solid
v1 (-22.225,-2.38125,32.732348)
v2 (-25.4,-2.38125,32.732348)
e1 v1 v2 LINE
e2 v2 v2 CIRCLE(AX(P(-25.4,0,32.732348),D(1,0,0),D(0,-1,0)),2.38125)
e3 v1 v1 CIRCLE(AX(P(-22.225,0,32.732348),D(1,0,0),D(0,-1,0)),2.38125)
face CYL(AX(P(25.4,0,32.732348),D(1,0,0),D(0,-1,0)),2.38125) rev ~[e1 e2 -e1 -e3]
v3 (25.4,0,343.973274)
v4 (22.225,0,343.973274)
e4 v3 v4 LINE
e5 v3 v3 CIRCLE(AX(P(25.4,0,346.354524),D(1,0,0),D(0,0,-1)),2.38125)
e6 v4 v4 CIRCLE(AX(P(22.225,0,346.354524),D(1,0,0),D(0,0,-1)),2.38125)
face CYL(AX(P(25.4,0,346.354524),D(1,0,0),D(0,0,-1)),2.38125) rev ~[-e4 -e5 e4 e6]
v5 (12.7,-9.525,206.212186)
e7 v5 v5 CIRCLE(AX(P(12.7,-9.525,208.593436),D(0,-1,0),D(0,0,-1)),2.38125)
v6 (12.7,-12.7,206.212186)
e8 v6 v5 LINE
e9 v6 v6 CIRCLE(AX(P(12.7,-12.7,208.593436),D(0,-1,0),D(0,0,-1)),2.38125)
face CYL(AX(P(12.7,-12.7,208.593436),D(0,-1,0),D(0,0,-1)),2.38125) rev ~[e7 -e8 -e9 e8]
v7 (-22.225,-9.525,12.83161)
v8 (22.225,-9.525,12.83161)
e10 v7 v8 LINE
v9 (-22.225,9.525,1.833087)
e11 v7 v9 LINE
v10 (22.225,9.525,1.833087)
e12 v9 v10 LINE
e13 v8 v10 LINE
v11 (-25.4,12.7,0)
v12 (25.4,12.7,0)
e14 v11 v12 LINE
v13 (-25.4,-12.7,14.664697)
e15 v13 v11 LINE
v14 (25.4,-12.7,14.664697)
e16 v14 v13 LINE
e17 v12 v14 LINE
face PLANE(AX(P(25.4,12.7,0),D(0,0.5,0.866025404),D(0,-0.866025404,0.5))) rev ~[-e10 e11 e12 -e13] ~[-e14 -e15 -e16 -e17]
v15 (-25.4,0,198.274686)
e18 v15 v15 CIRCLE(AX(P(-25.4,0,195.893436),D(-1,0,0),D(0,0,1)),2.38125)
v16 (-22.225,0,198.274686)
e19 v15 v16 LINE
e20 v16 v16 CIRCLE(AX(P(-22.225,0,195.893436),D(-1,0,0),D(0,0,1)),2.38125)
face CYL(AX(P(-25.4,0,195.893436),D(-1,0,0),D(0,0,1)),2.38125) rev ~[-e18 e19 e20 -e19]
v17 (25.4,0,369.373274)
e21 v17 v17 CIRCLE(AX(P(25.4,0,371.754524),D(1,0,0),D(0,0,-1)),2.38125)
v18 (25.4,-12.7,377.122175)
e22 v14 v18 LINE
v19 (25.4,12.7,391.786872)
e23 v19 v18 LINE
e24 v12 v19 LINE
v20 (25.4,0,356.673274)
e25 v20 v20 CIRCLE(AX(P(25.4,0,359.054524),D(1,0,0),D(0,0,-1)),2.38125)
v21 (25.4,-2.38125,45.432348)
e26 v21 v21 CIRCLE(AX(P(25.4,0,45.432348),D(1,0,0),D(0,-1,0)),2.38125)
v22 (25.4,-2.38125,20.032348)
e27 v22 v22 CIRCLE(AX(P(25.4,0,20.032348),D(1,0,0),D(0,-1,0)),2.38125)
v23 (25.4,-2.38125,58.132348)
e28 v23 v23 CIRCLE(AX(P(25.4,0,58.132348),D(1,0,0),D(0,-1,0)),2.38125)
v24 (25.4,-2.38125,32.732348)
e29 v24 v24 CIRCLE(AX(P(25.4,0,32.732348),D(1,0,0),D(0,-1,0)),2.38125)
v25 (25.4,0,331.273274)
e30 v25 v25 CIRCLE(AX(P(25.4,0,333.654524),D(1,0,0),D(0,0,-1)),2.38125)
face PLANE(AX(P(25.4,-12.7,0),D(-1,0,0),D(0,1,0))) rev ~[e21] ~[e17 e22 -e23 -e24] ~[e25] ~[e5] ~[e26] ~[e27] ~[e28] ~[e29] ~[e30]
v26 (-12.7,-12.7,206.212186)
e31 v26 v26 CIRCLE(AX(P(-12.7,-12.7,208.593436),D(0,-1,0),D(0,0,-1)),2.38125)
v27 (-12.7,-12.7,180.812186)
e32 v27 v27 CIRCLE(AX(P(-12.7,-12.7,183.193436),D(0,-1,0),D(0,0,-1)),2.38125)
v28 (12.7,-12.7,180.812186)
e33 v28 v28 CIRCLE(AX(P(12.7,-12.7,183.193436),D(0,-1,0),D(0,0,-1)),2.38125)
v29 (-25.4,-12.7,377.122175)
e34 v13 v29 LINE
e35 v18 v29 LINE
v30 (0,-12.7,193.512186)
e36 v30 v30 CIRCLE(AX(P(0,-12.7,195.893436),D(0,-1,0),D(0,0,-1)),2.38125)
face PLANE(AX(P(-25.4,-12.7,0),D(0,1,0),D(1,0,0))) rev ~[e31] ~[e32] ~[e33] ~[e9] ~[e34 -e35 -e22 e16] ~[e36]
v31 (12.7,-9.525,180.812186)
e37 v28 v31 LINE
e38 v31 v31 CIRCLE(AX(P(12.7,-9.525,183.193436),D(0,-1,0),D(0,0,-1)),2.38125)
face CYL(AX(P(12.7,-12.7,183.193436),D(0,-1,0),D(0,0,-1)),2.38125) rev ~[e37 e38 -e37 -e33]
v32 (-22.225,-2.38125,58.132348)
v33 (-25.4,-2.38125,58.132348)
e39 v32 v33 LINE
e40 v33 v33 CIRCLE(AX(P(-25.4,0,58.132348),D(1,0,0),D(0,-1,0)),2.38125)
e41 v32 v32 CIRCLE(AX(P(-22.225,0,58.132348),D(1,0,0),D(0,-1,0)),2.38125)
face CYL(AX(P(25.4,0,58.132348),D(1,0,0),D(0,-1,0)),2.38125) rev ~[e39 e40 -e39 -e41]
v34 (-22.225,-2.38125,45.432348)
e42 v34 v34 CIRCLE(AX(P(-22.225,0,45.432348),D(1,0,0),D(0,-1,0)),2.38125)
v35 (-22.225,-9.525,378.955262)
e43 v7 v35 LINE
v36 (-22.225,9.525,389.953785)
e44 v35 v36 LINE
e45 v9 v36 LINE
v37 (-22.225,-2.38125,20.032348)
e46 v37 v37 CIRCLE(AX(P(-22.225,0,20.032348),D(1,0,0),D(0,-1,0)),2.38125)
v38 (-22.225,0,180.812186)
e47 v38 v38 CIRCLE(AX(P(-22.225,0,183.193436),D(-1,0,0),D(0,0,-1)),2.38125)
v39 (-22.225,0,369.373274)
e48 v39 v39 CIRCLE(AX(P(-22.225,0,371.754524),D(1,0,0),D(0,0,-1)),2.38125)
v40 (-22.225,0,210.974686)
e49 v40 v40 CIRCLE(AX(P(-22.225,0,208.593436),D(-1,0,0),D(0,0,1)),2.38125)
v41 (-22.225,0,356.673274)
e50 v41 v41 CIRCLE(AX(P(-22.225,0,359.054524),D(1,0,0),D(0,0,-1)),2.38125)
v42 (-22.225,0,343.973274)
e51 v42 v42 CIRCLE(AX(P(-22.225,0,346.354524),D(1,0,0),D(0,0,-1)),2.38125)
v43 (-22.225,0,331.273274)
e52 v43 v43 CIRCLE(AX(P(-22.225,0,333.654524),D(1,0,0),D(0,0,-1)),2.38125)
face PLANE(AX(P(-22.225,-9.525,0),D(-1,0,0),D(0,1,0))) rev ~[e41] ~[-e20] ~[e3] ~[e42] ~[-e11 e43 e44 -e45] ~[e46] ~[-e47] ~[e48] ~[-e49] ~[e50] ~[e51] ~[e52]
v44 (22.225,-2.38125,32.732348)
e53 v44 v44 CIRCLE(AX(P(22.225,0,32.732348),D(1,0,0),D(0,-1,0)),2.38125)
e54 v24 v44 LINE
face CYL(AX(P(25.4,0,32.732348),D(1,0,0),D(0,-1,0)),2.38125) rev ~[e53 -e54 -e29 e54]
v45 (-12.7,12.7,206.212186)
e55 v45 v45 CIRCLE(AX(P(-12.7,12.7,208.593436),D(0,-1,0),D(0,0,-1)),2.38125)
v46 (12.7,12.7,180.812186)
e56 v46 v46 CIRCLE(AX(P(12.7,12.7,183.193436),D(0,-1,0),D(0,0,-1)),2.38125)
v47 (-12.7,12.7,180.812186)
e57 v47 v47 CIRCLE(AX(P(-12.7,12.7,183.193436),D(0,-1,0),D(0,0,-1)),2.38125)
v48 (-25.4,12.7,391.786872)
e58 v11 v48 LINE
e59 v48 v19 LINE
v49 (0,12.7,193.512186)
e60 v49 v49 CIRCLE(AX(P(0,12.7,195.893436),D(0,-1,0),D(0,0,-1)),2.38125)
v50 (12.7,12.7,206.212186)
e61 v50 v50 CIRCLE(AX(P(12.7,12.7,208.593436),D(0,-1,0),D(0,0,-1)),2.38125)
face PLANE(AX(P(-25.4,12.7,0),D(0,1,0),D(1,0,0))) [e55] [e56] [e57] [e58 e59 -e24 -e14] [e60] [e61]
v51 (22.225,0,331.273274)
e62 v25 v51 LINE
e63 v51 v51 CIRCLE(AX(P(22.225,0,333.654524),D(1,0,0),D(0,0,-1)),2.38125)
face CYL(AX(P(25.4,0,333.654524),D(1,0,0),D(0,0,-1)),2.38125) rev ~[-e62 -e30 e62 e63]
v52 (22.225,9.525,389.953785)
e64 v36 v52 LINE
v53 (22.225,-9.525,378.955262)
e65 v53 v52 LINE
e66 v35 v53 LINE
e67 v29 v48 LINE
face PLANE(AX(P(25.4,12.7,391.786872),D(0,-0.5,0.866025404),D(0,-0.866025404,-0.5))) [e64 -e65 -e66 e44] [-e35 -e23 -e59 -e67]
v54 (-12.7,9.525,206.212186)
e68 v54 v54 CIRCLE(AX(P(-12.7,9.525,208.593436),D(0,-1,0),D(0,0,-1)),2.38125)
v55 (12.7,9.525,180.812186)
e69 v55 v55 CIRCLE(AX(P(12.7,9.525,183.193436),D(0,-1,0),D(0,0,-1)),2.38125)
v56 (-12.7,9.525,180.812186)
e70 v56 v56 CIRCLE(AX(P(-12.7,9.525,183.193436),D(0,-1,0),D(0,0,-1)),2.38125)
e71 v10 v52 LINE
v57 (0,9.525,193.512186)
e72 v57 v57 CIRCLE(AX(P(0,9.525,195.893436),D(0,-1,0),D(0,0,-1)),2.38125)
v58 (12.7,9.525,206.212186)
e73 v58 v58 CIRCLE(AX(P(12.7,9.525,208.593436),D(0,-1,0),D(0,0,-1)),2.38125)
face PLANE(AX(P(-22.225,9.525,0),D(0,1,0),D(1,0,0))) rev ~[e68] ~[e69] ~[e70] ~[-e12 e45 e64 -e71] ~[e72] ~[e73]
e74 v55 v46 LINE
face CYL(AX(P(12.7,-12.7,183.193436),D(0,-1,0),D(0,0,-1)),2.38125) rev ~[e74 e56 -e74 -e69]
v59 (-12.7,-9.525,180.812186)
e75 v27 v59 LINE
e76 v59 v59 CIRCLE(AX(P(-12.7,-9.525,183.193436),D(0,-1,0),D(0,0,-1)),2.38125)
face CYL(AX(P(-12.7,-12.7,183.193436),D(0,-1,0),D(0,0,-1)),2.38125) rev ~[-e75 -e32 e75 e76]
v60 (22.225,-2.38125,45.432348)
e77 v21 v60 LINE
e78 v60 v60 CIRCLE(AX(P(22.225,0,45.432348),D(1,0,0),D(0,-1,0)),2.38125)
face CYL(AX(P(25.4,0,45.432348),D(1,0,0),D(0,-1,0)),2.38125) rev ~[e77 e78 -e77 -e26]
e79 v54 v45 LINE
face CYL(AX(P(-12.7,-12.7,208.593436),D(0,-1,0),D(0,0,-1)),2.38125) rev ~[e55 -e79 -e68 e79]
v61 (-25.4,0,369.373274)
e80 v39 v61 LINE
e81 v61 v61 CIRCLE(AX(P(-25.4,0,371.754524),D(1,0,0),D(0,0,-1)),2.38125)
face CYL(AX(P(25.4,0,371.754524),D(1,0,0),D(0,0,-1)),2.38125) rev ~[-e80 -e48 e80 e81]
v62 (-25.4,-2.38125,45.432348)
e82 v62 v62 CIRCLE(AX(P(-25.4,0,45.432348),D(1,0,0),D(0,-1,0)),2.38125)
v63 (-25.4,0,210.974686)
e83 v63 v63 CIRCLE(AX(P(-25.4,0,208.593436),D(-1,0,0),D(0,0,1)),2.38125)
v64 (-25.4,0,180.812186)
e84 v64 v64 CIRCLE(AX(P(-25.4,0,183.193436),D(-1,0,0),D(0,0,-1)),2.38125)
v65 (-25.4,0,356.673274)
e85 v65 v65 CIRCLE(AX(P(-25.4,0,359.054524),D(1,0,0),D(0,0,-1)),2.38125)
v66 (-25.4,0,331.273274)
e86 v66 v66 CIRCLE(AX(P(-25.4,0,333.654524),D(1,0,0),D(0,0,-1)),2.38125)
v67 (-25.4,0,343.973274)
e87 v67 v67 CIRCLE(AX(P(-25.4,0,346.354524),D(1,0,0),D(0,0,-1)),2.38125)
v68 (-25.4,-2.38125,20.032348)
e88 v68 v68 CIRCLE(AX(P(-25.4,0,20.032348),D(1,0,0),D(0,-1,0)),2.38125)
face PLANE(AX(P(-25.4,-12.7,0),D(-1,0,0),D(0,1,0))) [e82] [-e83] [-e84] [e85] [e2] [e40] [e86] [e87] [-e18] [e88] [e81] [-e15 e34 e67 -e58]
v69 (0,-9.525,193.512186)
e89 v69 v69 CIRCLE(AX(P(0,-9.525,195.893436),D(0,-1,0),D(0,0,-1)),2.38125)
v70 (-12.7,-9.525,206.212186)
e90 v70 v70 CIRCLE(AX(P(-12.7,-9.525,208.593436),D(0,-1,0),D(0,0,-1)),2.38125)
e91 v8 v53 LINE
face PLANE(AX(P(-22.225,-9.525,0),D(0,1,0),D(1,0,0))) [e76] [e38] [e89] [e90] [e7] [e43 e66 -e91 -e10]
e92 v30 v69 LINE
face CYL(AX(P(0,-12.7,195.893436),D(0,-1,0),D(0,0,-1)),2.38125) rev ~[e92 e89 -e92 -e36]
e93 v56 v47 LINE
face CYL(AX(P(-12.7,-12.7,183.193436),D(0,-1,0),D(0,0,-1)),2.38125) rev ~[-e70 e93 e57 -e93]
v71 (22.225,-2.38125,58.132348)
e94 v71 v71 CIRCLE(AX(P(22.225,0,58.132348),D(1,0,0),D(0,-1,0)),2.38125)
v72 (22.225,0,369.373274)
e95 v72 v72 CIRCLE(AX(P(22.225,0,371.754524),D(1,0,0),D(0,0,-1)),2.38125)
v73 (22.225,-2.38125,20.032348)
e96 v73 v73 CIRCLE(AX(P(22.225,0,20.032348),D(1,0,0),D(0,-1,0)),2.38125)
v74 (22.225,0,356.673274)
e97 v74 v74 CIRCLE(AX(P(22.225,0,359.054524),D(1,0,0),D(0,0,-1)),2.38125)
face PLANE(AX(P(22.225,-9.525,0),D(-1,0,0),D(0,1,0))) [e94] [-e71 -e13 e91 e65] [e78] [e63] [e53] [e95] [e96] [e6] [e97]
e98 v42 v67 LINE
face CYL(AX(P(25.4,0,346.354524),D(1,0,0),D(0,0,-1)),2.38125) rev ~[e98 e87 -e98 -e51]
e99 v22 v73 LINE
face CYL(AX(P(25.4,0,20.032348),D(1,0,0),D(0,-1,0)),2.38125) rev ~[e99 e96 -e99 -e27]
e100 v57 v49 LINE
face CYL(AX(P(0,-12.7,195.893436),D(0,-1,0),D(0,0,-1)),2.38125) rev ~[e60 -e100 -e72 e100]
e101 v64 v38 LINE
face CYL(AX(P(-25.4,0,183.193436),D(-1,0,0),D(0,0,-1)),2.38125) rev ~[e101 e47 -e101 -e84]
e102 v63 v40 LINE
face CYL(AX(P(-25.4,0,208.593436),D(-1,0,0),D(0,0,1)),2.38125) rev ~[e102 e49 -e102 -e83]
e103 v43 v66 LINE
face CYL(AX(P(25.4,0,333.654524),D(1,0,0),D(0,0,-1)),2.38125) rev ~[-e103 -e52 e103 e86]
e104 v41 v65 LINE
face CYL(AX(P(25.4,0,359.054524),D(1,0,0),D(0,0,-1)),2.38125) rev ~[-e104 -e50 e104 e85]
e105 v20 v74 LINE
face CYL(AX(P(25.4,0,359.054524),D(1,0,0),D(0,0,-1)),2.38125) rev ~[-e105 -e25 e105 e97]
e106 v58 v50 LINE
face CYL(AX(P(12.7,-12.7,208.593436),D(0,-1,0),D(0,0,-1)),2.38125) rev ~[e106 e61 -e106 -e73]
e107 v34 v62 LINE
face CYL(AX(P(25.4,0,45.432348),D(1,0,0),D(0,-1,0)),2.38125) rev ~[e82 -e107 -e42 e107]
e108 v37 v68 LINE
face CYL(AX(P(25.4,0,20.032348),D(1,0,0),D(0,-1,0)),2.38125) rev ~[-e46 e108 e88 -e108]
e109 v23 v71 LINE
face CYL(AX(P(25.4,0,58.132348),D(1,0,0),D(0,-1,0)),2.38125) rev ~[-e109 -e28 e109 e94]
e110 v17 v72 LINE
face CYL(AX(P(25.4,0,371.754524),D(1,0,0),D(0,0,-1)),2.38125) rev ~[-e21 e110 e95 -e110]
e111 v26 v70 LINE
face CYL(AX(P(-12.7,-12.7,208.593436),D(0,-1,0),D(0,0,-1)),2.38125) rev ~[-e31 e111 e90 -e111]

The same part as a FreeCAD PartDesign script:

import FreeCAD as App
import Part
import Sketcher
Q = App.Units.Quantity


def add_polygon(sketch, points):
    """Adds a closed chain of lines whose ends are joined by coincident constraints."""
    first, n = sketch.GeometryCount, len(points)
    for a, b in zip(points, points[1:] + points[:1]):
        sketch.addGeometry(Part.LineSegment(App.Vector(*a, 0), App.Vector(*b, 0)), False)
    for i in range(n):
        sketch.addConstraint(Sketcher.Constraint("Coincident", first + i, 2, first + (i + 1) % n, 1))

doc = App.newDocument("Part")
body = doc.addObject("PartDesign::Body", "Body")

# Sketch on XY plane
sketch1 = doc.addObject("Sketcher::SketchObject", "Sketch")
body.addObject(sketch1)
sketch1.AttachmentSupport = (doc.XY_Plane, [""])
sketch1.MapMode = "FlatFace"
add_polygon(sketch1, [(-25.4, 12.7), (-25.4, -12.7), (25.4, -12.7), (25.4, 12.7)])  # lines 0-3
add_polygon(sketch1, [(22.225, -9.525), (-22.225, -9.525), (-22.225, 9.525), (22.225, 9.525)])  # lines 4-7
sketch1.addConstraint([
    Sketcher.Constraint("Vertical", 0),
    Sketcher.Constraint("Horizontal", 1),
    Sketcher.Constraint("Vertical", 2),
    Sketcher.Constraint("Horizontal", 3),
    Sketcher.Constraint("Horizontal", 4),
    Sketcher.Constraint("Vertical", 5),
    Sketcher.Constraint("Horizontal", 6),
    Sketcher.Constraint("Vertical", 7),
    Sketcher.Constraint("Symmetric", 0, 2, 2, 2, -1, 1),
    Sketcher.Constraint("Symmetric", 4, 2, 6, 2, -1, 1),
    Sketcher.Constraint("DistanceX", 1, 1, 1, 2, Q("2 in")),
    Sketcher.Constraint("DistanceY", 0, 2, 0, 1, Q("1 in")),
    Sketcher.Constraint("DistanceX", 4, 2, 4, 1, Q("1.75 in")),
    Sketcher.Constraint("DistanceY", 5, 1, 5, 2, Q("0.75 in")),
])
pad1 = doc.addObject("PartDesign::Pad", "Pad")
body.addObject(pad1)
pad1.Profile = sketch1
pad1.Length = 391.786872

# Sketch on YZ plane
sketch2 = doc.addObject("Sketcher::SketchObject", "Sketch001")
body.addObject(sketch2)
sketch2.AttachmentSupport = (doc.YZ_Plane, [""])
sketch2.MapMode = "FlatFace"
sketch2.AttachmentOffset = App.Placement(App.Vector(0, 0, 1 * 25.4), App.Rotation())
add_polygon(sketch2, [(12.7, 0), (-12.7, 14.664697), (-12.7, 0)])  # lines 0-2
add_polygon(sketch2, [(12.7, 391.786872), (-12.7, 391.786872), (-12.7, 377.122175)])  # lines 3-5
sketch2.addConstraint([
    Sketcher.Constraint("Vertical", 1),
    Sketcher.Constraint("Horizontal", 2),
    Sketcher.Constraint("Horizontal", 3),
    Sketcher.Constraint("Vertical", 4),
    Sketcher.Constraint("Symmetric", 1, 2, 2, 2, -1, 1),
    Sketcher.Constraint("Vertical", 1, 2, 3, 2),
    Sketcher.Constraint("Vertical", 2, 2, 5, 2),
    Sketcher.Constraint("Equal", 1, 4),
    Sketcher.Constraint("DistanceX", 2, 1, 2, 2, Q("1 in")),
    Sketcher.Constraint("Angle", 0, Q("150 deg")),
    Sketcher.Constraint("DistanceY", -1, 1, 3, 2, 391.786872),
])
pocket1 = doc.addObject("PartDesign::Pocket", "Pocket")
body.addObject(pocket1)
pocket1.Profile = sketch2
pocket1.Length = Q("18 in")

# Sketch on XZ plane
sketch3 = doc.addObject("Sketcher::SketchObject", "Sketch002")
body.addObject(sketch3)
sketch3.AttachmentSupport = (doc.XZ_Plane, [""])
sketch3.MapMode = "FlatFace"
sketch3.AttachmentOffset = App.Placement(App.Vector(0, 0, 0.5 * 25.4), App.Rotation())
sketch3.addGeometry([
    Part.Circle(App.Vector(0, 195.893436, 0), App.Vector(0, 0, 1), 2.38125),  # 0
    Part.Circle(App.Vector(12.7, 208.593436, 0), App.Vector(0, 0, 1), 2.38125),  # 1
    Part.Circle(App.Vector(-12.7, 208.593436, 0), App.Vector(0, 0, 1), 2.38125),  # 2
    Part.Circle(App.Vector(12.7, 183.193436, 0), App.Vector(0, 0, 1), 2.38125),  # 3
    Part.Circle(App.Vector(-12.7, 183.193436, 0), App.Vector(0, 0, 1), 2.38125),  # 4
], False)
sketch3.addConstraint([
    Sketcher.Constraint("Equal", 0, 1),
    Sketcher.Constraint("Equal", 1, 2),
    Sketcher.Constraint("Equal", 2, 3),
    Sketcher.Constraint("Equal", 3, 4),
    Sketcher.Constraint("Symmetric", 1, 3, 2, 3, -2),
    Sketcher.Constraint("Symmetric", 3, 3, 4, 3, -2),
    Sketcher.Constraint("PointOnObject", 0, 3, -2),
    Sketcher.Constraint("Vertical", 1, 3, 3, 3),
    Sketcher.Constraint("Diameter", 0, Q("0.1875 in")),
    Sketcher.Constraint("DistanceX", 2, 3, 1, 3, Q("1 in")),
    Sketcher.Constraint("DistanceY", 3, 3, 1, 3, Q("1 in")),
    Sketcher.Constraint("DistanceY", 0, 3, 1, 3, Q("0.5 in")),
    Sketcher.Constraint("DistanceY", -1, 1, 0, 3, 195.893436),
])
pocket2 = doc.addObject("PartDesign::Pocket", "Pocket001")
body.addObject(pocket2)
pocket2.Profile = sketch3
pocket2.Type = "ThroughAll"

# Sketch on YZ plane
sketch4 = doc.addObject("Sketcher::SketchObject", "Sketch003")
body.addObject(sketch4)
sketch4.AttachmentSupport = (doc.YZ_Plane, [""])
sketch4.MapMode = "FlatFace"
sketch4.AttachmentOffset = App.Placement(App.Vector(0, 0, -1 * 25.4), App.Rotation())
sketch4.addGeometry([
    Part.Circle(App.Vector(0, 195.893436, 0), App.Vector(0, 0, 1), 2.38125),
    Part.Circle(App.Vector(0, 208.593436, 0), App.Vector(0, 0, 1), 2.38125),
    Part.Circle(App.Vector(0, 183.193436, 0), App.Vector(0, 0, 1), 2.38125),
], False)
sketch4.addConstraint([
    Sketcher.Constraint("Equal", 0, 1),
    Sketcher.Constraint("Equal", 1, 2),
    Sketcher.Constraint("PointOnObject", 0, 3, -2),
    Sketcher.Constraint("PointOnObject", 1, 3, -2),
    Sketcher.Constraint("PointOnObject", 2, 3, -2),
    Sketcher.Constraint("Diameter", 0, Q("0.1875 in")),
    Sketcher.Constraint("DistanceY", 2, 3, 1, 3, Q("1 in")),
    Sketcher.Constraint("DistanceY", 0, 3, 1, 3, Q("0.5 in")),
    Sketcher.Constraint("DistanceY", -1, 1, 0, 3, 195.893436),
])
pocket3 = doc.addObject("PartDesign::Pocket", "Pocket002")
body.addObject(pocket3)
pocket3.Profile = sketch4
pocket3.Length = Q("0.125 in")
pocket3.Reversed = True

# Sketch on YZ plane
sketch5 = doc.addObject("Sketcher::SketchObject", "Sketch004")
body.addObject(sketch5)
sketch5.AttachmentSupport = (doc.YZ_Plane, [""])
sketch5.MapMode = "FlatFace"
sketch5.AttachmentOffset = App.Placement(App.Vector(0, 0, 1 * 25.4), App.Rotation())
sketch5.addGeometry([
    Part.Circle(App.Vector(0, 371.754524, 0), App.Vector(0, 0, 1), 2.38125),  # 0
    Part.Circle(App.Vector(0, 359.054524, 0), App.Vector(0, 0, 1), 2.38125),  # 1
    Part.Circle(App.Vector(0, 346.354524, 0), App.Vector(0, 0, 1), 2.38125),  # 2
    Part.Circle(App.Vector(0, 333.654524, 0), App.Vector(0, 0, 1), 2.38125),  # 3
    Part.Circle(App.Vector(0, 58.132348, 0), App.Vector(0, 0, 1), 2.38125),  # 4
    Part.Circle(App.Vector(0, 45.432348, 0), App.Vector(0, 0, 1), 2.38125),  # 5
    Part.Circle(App.Vector(0, 32.732348, 0), App.Vector(0, 0, 1), 2.38125),  # 6
    Part.Circle(App.Vector(0, 20.032348, 0), App.Vector(0, 0, 1), 2.38125),  # 7
], False)
sketch5.addConstraint([
    Sketcher.Constraint("Equal", 0, 1),
    Sketcher.Constraint("Equal", 1, 2),
    Sketcher.Constraint("Equal", 2, 3),
    Sketcher.Constraint("Equal", 3, 4),
    Sketcher.Constraint("Equal", 4, 5),
    Sketcher.Constraint("Equal", 5, 6),
    Sketcher.Constraint("Equal", 6, 7),
    Sketcher.Constraint("PointOnObject", 0, 3, -2),
    Sketcher.Constraint("PointOnObject", 1, 3, -2),
    Sketcher.Constraint("PointOnObject", 2, 3, -2),
    Sketcher.Constraint("PointOnObject", 3, 3, -2),
    Sketcher.Constraint("PointOnObject", 4, 3, -2),
    Sketcher.Constraint("PointOnObject", 5, 3, -2),
    Sketcher.Constraint("PointOnObject", 6, 3, -2),
    Sketcher.Constraint("PointOnObject", 7, 3, -2),
    Sketcher.Constraint("Diameter", 0, Q("0.1875 in")),
    Sketcher.Constraint("DistanceY", 2, 3, 0, 3, Q("1 in")),
    Sketcher.Constraint("DistanceY", 3, 3, 1, 3, Q("1 in")),
    Sketcher.Constraint("DistanceY", 6, 3, 4, 3, Q("1 in")),
    Sketcher.Constraint("DistanceY", 7, 3, 5, 3, Q("1 in")),
    Sketcher.Constraint("DistanceY", 1, 3, 0, 3, Q("0.5 in")),
    Sketcher.Constraint("DistanceY", 5, 3, 4, 3, Q("0.5 in")),
    Sketcher.Constraint("DistanceY", -1, 1, 4, 3, 58.132348),
    Sketcher.Constraint("DistanceY", -1, 1, 0, 3, 371.754524),
])
pocket4 = doc.addObject("PartDesign::Pocket", "Pocket003")
body.addObject(pocket4)
pocket4.Profile = sketch5
pocket4.Type = "ThroughAll"

doc.recompute()
